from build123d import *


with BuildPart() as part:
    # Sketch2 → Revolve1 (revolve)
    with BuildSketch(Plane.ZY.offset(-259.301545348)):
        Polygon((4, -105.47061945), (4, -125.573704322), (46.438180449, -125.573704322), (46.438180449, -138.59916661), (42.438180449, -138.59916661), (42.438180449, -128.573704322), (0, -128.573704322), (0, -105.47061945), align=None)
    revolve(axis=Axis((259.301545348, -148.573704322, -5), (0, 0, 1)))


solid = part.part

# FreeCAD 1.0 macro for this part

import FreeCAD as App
import Part
import Sketcher

V = App.Vector
Q = App.Units.Quantity


def add_polygon(sketch, points):
    """Adds a closed chain of lines whose ends are joined by coincident constraints."""
    first, n = sketch.GeometryCount, len(points)
    for a, b in zip(points, points[1:] + points[:1]):
        sketch.addGeometry(Part.LineSegment(App.Vector(*a, 0), App.Vector(*b, 0)), False)
    for i in range(n):
        sketch.addConstraint(Sketcher.Constraint("Coincident", first + i, 2, first + (i + 1) % n, 1))

doc = App.newDocument("Part")
body = doc.addObject("PartDesign::Body", "Body")

# Sketch on YZ plane
sketch1 = body.newObject("Sketcher::SketchObject", "Sketch")
sketch1.AttachmentSupport = (doc.getObject("YZ_Plane"), [""])
sketch1.MapMode = "FlatFace"
sketch1.AttachmentOffset = App.Placement(V(0, 0, 259.301545), App.Rotation())
add_polygon(sketch1, [(-125.573704, 4), (-105.470619, 4), (-105.470619, 0), (-128.573704, 0), (-128.573704, 42.43818), (-138.599167, 42.43818), (-138.599167, 46.43818), (-125.573704, 46.43818)])  # lines 0-7
sketch1.addGeometry(Part.LineSegment(V(-148.573704, 0, 0), V(-148.573704, 46.43818, 0)), True)  # axis
sketch1.addConstraint([
    Sketcher.Constraint("Horizontal", 0),
    Sketcher.Constraint("Vertical", 1),
    Sketcher.Constraint("Horizontal", 2),
    Sketcher.Constraint("Vertical", 3),
    Sketcher.Constraint("Horizontal", 4),
    Sketcher.Constraint("Vertical", 5),
    Sketcher.Constraint("Horizontal", 6),
    Sketcher.Constraint("Vertical", 7),
    Sketcher.Constraint("Vertical", 8),
    Sketcher.Constraint("PointOnObject", 1, 2, -1),
    Sketcher.Constraint("PointOnObject", 8, 1, -1),
    Sketcher.Constraint("Horizontal", 6, 2, 8, 2),
    Sketcher.Constraint("Equal", 1, 5),
    Sketcher.Constraint("DistanceY", 1, 2, 1, 1, Q("4 mm")),
    Sketcher.Constraint("DistanceX", 3, 2, 6, 2, Q("3 mm")),
    Sketcher.Constraint("DistanceX", 8, 1, 2, 2, Q("20 mm")),
    Sketcher.Constraint("DistanceY", 3, 1, 3, 2, Q("42.43818 mm")),
    Sketcher.Constraint("DistanceX", 0, 1, 0, 2, Q("20.103085 mm")),
    Sketcher.Constraint("DistanceX", 4, 2, 4, 1, Q("10.025462 mm")),
    Sketcher.Constraint("DistanceX", 0, 2, -1, 1, Q("105.470619 mm")),
])
revolution = body.newObject("PartDesign::Revolution", "Revolution")
revolution.Profile = sketch1
revolution.ReferenceAxis = (sketch1, ["Axis0"])
revolution.Angle = 360

doc.recompute()
